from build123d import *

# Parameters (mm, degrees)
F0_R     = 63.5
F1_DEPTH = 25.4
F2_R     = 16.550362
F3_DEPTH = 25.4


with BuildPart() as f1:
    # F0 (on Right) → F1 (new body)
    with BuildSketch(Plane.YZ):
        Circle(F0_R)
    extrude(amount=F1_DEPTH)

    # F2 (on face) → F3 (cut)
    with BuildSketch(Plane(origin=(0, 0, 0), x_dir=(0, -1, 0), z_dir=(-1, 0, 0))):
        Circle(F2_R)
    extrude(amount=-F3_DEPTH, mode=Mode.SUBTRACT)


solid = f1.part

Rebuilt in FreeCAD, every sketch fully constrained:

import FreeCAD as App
import Part
import Sketcher
Q = App.Units.Quantity

doc = App.newDocument("Part")
body = doc.addObject("PartDesign::Body", "Body")

sketch1 = doc.addObject("Sketcher::SketchObject", "Sketch")
body.addObject(sketch1)
sketch1.AttachmentSupport = (doc.YZ_Plane, [""])
sketch1.MapMode = "FlatFace"
sketch1.addGeometry(Part.Circle(App.Vector(0, 0, 0), App.Vector(0, 0, 1), 64), False)
sketch1.addConstraint(Sketcher.Constraint("Coincident", 0, 3, -1, 1))
sketch1.addConstraint(Sketcher.Constraint("Diameter", 0, Q("5 in")))
pad1 = doc.addObject("PartDesign::Pad", "Pad")
body.addObject(pad1)
pad1.Profile = sketch1
pad1.Length = Q("1 in")

sketch2 = doc.addObject("Sketcher::SketchObject", "Sketch001")
body.addObject(sketch2)
sketch2.AttachmentSupport = (doc.YZ_Plane, [""])
sketch2.MapMode = "FlatFace"
sketch2.addGeometry(Part.Circle(App.Vector(0, 0, 0), App.Vector(0, 0, 1), 17), False)
sketch2.addConstraint(Sketcher.Constraint("Coincident", 0, 3, -1, 1))
sketch2.addConstraint(Sketcher.Constraint("Diameter", 0, 33.100724))
pocket1 = doc.addObject("PartDesign::Pocket", "Pocket")
body.addObject(pocket1)
pocket1.Profile = sketch2
pocket1.Length = Q("1 in")
pocket1.Reversed = True

doc.recompute()
